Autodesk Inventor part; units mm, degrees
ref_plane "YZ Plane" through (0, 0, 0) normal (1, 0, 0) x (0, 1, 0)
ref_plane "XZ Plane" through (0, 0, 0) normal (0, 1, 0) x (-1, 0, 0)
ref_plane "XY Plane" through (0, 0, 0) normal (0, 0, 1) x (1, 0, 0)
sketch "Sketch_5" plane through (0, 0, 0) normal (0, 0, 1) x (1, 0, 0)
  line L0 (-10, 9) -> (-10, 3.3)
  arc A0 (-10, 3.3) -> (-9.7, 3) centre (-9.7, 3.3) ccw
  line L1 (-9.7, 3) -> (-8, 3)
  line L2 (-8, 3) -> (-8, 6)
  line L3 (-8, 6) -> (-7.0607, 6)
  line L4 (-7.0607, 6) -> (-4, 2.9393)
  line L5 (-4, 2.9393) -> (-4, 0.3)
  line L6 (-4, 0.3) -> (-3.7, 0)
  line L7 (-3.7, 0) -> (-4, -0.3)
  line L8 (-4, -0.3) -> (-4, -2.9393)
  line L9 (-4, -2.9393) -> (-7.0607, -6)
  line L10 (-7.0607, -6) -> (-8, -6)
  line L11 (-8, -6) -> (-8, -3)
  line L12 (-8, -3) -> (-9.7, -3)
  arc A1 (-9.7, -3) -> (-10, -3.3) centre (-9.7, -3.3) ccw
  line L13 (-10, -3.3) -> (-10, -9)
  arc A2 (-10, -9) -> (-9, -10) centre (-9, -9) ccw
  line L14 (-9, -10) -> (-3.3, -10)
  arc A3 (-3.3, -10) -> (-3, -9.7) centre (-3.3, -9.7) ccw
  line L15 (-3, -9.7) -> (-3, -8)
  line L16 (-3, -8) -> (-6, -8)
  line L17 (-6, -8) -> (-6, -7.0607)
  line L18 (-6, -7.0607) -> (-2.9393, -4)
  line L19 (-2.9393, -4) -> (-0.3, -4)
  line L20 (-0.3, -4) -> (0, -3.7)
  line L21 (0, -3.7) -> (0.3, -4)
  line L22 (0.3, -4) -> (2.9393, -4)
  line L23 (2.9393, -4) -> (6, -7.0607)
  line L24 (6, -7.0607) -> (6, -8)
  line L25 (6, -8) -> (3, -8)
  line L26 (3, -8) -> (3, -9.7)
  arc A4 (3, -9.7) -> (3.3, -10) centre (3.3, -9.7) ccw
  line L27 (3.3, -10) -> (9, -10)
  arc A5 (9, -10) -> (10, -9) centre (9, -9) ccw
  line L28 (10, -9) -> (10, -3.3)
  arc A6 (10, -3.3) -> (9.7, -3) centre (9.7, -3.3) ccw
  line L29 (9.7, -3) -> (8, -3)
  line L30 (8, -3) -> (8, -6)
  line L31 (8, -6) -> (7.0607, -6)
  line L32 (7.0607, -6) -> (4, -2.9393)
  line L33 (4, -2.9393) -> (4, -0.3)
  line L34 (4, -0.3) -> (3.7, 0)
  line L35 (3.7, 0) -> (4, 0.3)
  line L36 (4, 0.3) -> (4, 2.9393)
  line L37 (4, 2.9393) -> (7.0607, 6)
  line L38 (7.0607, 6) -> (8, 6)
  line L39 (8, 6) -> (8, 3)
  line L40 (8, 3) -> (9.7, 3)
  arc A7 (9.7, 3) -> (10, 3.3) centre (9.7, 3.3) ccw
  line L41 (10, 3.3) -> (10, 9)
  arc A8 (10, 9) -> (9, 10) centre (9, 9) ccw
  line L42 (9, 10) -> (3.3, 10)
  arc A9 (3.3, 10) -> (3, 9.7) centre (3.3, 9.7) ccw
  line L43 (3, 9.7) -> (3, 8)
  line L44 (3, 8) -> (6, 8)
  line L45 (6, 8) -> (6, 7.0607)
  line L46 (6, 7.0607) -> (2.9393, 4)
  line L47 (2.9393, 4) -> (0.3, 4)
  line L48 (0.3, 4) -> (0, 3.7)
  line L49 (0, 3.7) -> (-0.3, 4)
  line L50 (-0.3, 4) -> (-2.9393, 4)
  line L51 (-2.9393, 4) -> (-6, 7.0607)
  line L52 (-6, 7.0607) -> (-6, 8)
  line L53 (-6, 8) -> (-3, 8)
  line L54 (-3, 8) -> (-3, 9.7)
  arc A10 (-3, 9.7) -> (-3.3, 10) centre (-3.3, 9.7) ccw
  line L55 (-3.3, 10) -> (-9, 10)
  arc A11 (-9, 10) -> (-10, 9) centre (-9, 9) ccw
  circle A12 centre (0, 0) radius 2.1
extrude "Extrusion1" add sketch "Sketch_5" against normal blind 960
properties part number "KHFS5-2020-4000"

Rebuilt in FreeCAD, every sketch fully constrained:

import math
import FreeCAD as App
import Part
import Sketcher
from FreeCAD import Vector
Q = App.Units.Quantity

doc = App.newDocument("Part")
body = doc.addObject("PartDesign::Body", "Body")

# Sketch on XY plane
sketch1 = body.newObject("Sketcher::SketchObject", "Sketch")
sketch1.AttachmentSupport = (doc.getObject("XY_Plane"), [""])
sketch1.MapMode = "FlatFace"
sketch1.addGeometry(Part.ArcOfCircle(Part.Circle(Vector(-9, 9, 0), Vector(0, 0, 1), 1), math.radians(90), math.radians(180)), False)
sketch1.addGeometry(Part.LineSegment(Vector(-10, 9, 0), Vector(-10, 3.3, 0)), False)
sketch1.addGeometry(Part.ArcOfCircle(Part.Circle(Vector(-9.7, 3.3, 0), Vector(0, 0, 1), 0.3), math.radians(180), math.radians(270)), False)
sketch1.addGeometry(Part.LineSegment(Vector(-9.7, 3, 0), Vector(-8, 3, 0)), False)
sketch1.addGeometry(Part.LineSegment(Vector(-8, 3, 0), Vector(-8, 6, 0)), False)
sketch1.addGeometry(Part.LineSegment(Vector(-8, 6, 0), Vector(-7.06, 6, 0)), False)
sketch1.addGeometry(Part.LineSegment(Vector(-7.06, 6, 0), Vector(-4, 2.94, 0)), False)
sketch1.addGeometry(Part.LineSegment(Vector(-4, 2.94, 0), Vector(-4, 0.3, 0)), False)
sketch1.addGeometry(Part.LineSegment(Vector(-4, 0.3, 0), Vector(-3.7, 0, 0)), False)
sketch1.addGeometry(Part.LineSegment(Vector(-3.7, 0, 0), Vector(-4, -0.3, 0)), False)
sketch1.addGeometry(Part.LineSegment(Vector(-4, -0.3, 0), Vector(-4, -2.94, 0)), False)
sketch1.addGeometry(Part.LineSegment(Vector(-4, -2.94, 0), Vector(-7.06, -6, 0)), False)
sketch1.addGeometry(Part.LineSegment(Vector(-7.06, -6, 0), Vector(-8, -6, 0)), False)
sketch1.addGeometry(Part.LineSegment(Vector(-8, -6, 0), Vector(-8, -3, 0)), False)
sketch1.addGeometry(Part.LineSegment(Vector(-8, -3, 0), Vector(-9.7, -3, 0)), False)
sketch1.addGeometry(Part.ArcOfCircle(Part.Circle(Vector(-9.7, -3.3, 0), Vector(0, 0, 1), 0.3), math.radians(90), math.radians(180)), False)
sketch1.addGeometry(Part.LineSegment(Vector(-10, -3.3, 0), Vector(-10, -9, 0)), False)
sketch1.addGeometry(Part.ArcOfCircle(Part.Circle(Vector(-9, -9, 0), Vector(0, 0, 1), 1), math.radians(180), math.radians(270)), False)
sketch1.addGeometry(Part.LineSegment(Vector(-9, -10, 0), Vector(-3.3, -10, 0)), False)
sketch1.addGeometry(Part.ArcOfCircle(Part.Circle(Vector(-3.3, -9.7, 0), Vector(0, 0, 1), 0.3), math.radians(-90), math.radians(0)), False)
sketch1.addGeometry(Part.LineSegment(Vector(-3, -9.7, 0), Vector(-3, -8, 0)), False)
sketch1.addGeometry(Part.LineSegment(Vector(-3, -8, 0), Vector(-6, -8, 0)), False)
sketch1.addGeometry(Part.LineSegment(Vector(-6, -8, 0), Vector(-6, -7.06, 0)), False)
sketch1.addGeometry(Part.LineSegment(Vector(-6, -7.06, 0), Vector(-2.94, -4, 0)), False)
sketch1.addGeometry(Part.LineSegment(Vector(-2.94, -4, 0), Vector(-0.3, -4, 0)), False)
sketch1.addGeometry(Part.LineSegment(Vector(-0.3, -4, 0), Vector(0, -3.7, 0)), False)
sketch1.addGeometry(Part.LineSegment(Vector(0, -3.7, 0), Vector(0.3, -4, 0)), False)
sketch1.addGeometry(Part.LineSegment(Vector(0.3, -4, 0), Vector(2.94, -4, 0)), False)
sketch1.addGeometry(Part.LineSegment(Vector(2.94, -4, 0), Vector(6, -7.06, 0)), False)
sketch1.addGeometry(Part.LineSegment(Vector(6, -7.06, 0), Vector(6, -8, 0)), False)
sketch1.addGeometry(Part.LineSegment(Vector(6, -8, 0), Vector(3, -8, 0)), False)
sketch1.addGeometry(Part.LineSegment(Vector(3, -8, 0), Vector(3, -9.7, 0)), False)
sketch1.addGeometry(Part.ArcOfCircle(Part.Circle(Vector(3.3, -9.7, 0), Vector(0, 0, 1), 0.3), math.radians(180), math.radians(270)), False)
sketch1.addGeometry(Part.LineSegment(Vector(3.3, -10, 0), Vector(9, -10, 0)), False)
sketch1.addGeometry(Part.ArcOfCircle(Part.Circle(Vector(9, -9, 0), Vector(0, 0, 1), 1), math.radians(-90), math.radians(0)), False)
sketch1.addGeometry(Part.LineSegment(Vector(10, -9, 0), Vector(10, -3.3, 0)), False)
sketch1.addGeometry(Part.ArcOfCircle(Part.Circle(Vector(9.7, -3.3, 0), Vector(0, 0, 1), 0.3), math.radians(0), math.radians(90)), False)
sketch1.addGeometry(Part.LineSegment(Vector(9.7, -3, 0), Vector(8, -3, 0)), False)
sketch1.addGeometry(Part.LineSegment(Vector(8, -3, 0), Vector(8, -6, 0)), False)
sketch1.addGeometry(Part.LineSegment(Vector(8, -6, 0), Vector(7.06, -6, 0)), False)
sketch1.addGeometry(Part.LineSegment(Vector(7.06, -6, 0), Vector(4, -2.94, 0)), False)
sketch1.addGeometry(Part.LineSegment(Vector(4, -2.94, 0), Vector(4, -0.3, 0)), False)
sketch1.addGeometry(Part.LineSegment(Vector(4, -0.3, 0), Vector(3.7, 0, 0)), False)
sketch1.addGeometry(Part.LineSegment(Vector(3.7, 0, 0), Vector(4, 0.3, 0)), False)
sketch1.addGeometry(Part.LineSegment(Vector(4, 0.3, 0), Vector(4, 2.94, 0)), False)
sketch1.addGeometry(Part.LineSegment(Vector(4, 2.94, 0), Vector(7.06, 6, 0)), False)
sketch1.addGeometry(Part.LineSegment(Vector(7.06, 6, 0), Vector(8, 6, 0)), False)
sketch1.addGeometry(Part.LineSegment(Vector(8, 6, 0), Vector(8, 3, 0)), False)
sketch1.addGeometry(Part.LineSegment(Vector(8, 3, 0), Vector(9.7, 3, 0)), False)
sketch1.addGeometry(Part.ArcOfCircle(Part.Circle(Vector(9.7, 3.3, 0), Vector(0, 0, 1), 0.3), math.radians(-90), math.radians(0)), False)
sketch1.addGeometry(Part.LineSegment(Vector(10, 3.3, 0), Vector(10, 9, 0)), False)
sketch1.addGeometry(Part.ArcOfCircle(Part.Circle(Vector(9, 9, 0), Vector(0, 0, 1), 1), math.radians(0), math.radians(90)), False)
sketch1.addGeometry(Part.LineSegment(Vector(9, 10, 0), Vector(3.3, 10, 0)), False)
sketch1.addGeometry(Part.ArcOfCircle(Part.Circle(Vector(3.3, 9.7, 0), Vector(0, 0, 1), 0.3), math.radians(90), math.radians(180)), False)
sketch1.addGeometry(Part.LineSegment(Vector(3, 9.7, 0), Vector(3, 8, 0)), False)
sketch1.addGeometry(Part.LineSegment(Vector(3, 8, 0), Vector(6, 8, 0)), False)
sketch1.addGeometry(Part.LineSegment(Vector(6, 8, 0), Vector(6, 7.06, 0)), False)
sketch1.addGeometry(Part.LineSegment(Vector(6, 7.06, 0), Vector(2.94, 4, 0)), False)
sketch1.addGeometry(Part.LineSegment(Vector(2.94, 4, 0), Vector(0.3, 4, 0)), False)
sketch1.addGeometry(Part.LineSegment(Vector(0.3, 4, 0), Vector(0, 3.7, 0)), False)
sketch1.addGeometry(Part.LineSegment(Vector(0, 3.7, 0), Vector(-0.3, 4, 0)), False)
sketch1.addGeometry(Part.LineSegment(Vector(-0.3, 4, 0), Vector(-2.94, 4, 0)), False)
sketch1.addGeometry(Part.LineSegment(Vector(-2.94, 4, 0), Vector(-6, 7.06, 0)), False)
sketch1.addGeometry(Part.LineSegment(Vector(-6, 7.06, 0), Vector(-6, 8, 0)), False)
sketch1.addGeometry(Part.LineSegment(Vector(-6, 8, 0), Vector(-3, 8, 0)), False)
sketch1.addGeometry(Part.LineSegment(Vector(-3, 8, 0), Vector(-3, 9.7, 0)), False)
sketch1.addGeometry(Part.ArcOfCircle(Part.Circle(Vector(-3.3, 9.7, 0), Vector(0, 0, 1), 0.3), math.radians(0), math.radians(90)), False)
sketch1.addGeometry(Part.LineSegment(Vector(-3.3, 10, 0), Vector(-9, 10, 0)), False)
sketch1.addGeometry(Part.Circle(Vector(0, 0, 0), Vector(0, 0, 1), 2.1), False)
sketch1.addConstraint(Sketcher.Constraint("Tangent", 0, 2, 1, 1))
sketch1.addConstraint(Sketcher.Constraint("Tangent", 1, 2, 2, 1))
sketch1.addConstraint(Sketcher.Constraint("Tangent", 2, 2, 3, 1))
sketch1.addConstraint(Sketcher.Constraint("Coincident", 3, 2, 4, 1))
sketch1.addConstraint(Sketcher.Constraint("Coincident", 4, 2, 5, 1))
sketch1.addConstraint(Sketcher.Constraint("Coincident", 5, 2, 6, 1))
sketch1.addConstraint(Sketcher.Constraint("Coincident", 6, 2, 7, 1))
sketch1.addConstraint(Sketcher.Constraint("Coincident", 7, 2, 8, 1))
sketch1.addConstraint(Sketcher.Constraint("Coincident", 8, 2, 9, 1))
sketch1.addConstraint(Sketcher.Constraint("Coincident", 9, 2, 10, 1))
sketch1.addConstraint(Sketcher.Constraint("Coincident", 10, 2, 11, 1))
sketch1.addConstraint(Sketcher.Constraint("Coincident", 11, 2, 12, 1))
sketch1.addConstraint(Sketcher.Constraint("Coincident", 12, 2, 13, 1))
sketch1.addConstraint(Sketcher.Constraint("Coincident", 13, 2, 14, 1))
sketch1.addConstraint(Sketcher.Constraint("Tangent", 14, 2, 15, 1))
sketch1.addConstraint(Sketcher.Constraint("Tangent", 15, 2, 16, 1))
sketch1.addConstraint(Sketcher.Constraint("Tangent", 16, 2, 17, 1))
sketch1.addConstraint(Sketcher.Constraint("Tangent", 17, 2, 18, 1))
sketch1.addConstraint(Sketcher.Constraint("Tangent", 18, 2, 19, 1))
sketch1.addConstraint(Sketcher.Constraint("Tangent", 19, 2, 20, 1))
sketch1.addConstraint(Sketcher.Constraint("Coincident", 20, 2, 21, 1))
sketch1.addConstraint(Sketcher.Constraint("Coincident", 21, 2, 22, 1))
sketch1.addConstraint(Sketcher.Constraint("Coincident", 22, 2, 23, 1))
sketch1.addConstraint(Sketcher.Constraint("Coincident", 23, 2, 24, 1))
sketch1.addConstraint(Sketcher.Constraint("Coincident", 24, 2, 25, 1))
sketch1.addConstraint(Sketcher.Constraint("Coincident", 25, 2, 26, 1))
sketch1.addConstraint(Sketcher.Constraint("Coincident", 26, 2, 27, 1))
sketch1.addConstraint(Sketcher.Constraint("Coincident", 27, 2, 28, 1))
sketch1.addConstraint(Sketcher.Constraint("Coincident", 28, 2, 29, 1))
sketch1.addConstraint(Sketcher.Constraint("Coincident", 29, 2, 30, 1))
sketch1.addConstraint(Sketcher.Constraint("Coincident", 30, 2, 31, 1))
sketch1.addConstraint(Sketcher.Constraint("Tangent", 31, 2, 32, 1))
sketch1.addConstraint(Sketcher.Constraint("Tangent", 32, 2, 33, 1))
sketch1.addConstraint(Sketcher.Constraint("Tangent", 33, 2, 34, 1))
sketch1.addConstraint(Sketcher.Constraint("Tangent", 34, 2, 35, 1))
sketch1.addConstraint(Sketcher.Constraint("Tangent", 35, 2, 36, 1))
sketch1.addConstraint(Sketcher.Constraint("Tangent", 36, 2, 37, 1))
sketch1.addConstraint(Sketcher.Constraint("Coincident", 37, 2, 38, 1))
sketch1.addConstraint(Sketcher.Constraint("Coincident", 38, 2, 39, 1))
sketch1.addConstraint(Sketcher.Constraint("Coincident", 39, 2, 40, 1))
sketch1.addConstraint(Sketcher.Constraint("Coincident", 40, 2, 41, 1))
sketch1.addConstraint(Sketcher.Constraint("Coincident", 41, 2, 42, 1))
sketch1.addConstraint(Sketcher.Constraint("Coincident", 42, 2, 43, 1))
sketch1.addConstraint(Sketcher.Constraint("Coincident", 43, 2, 44, 1))
sketch1.addConstraint(Sketcher.Constraint("Coincident", 44, 2, 45, 1))
sketch1.addConstraint(Sketcher.Constraint("Coincident", 45, 2, 46, 1))
sketch1.addConstraint(Sketcher.Constraint("Coincident", 46, 2, 47, 1))
sketch1.addConstraint(Sketcher.Constraint("Coincident", 47, 2, 48, 1))
sketch1.addConstraint(Sketcher.Constraint("Tangent", 48, 2, 49, 1))
sketch1.addConstraint(Sketcher.Constraint("Tangent", 49, 2, 50, 1))
sketch1.addConstraint(Sketcher.Constraint("Tangent", 50, 2, 51, 1))
sketch1.addConstraint(Sketcher.Constraint("Tangent", 51, 2, 52, 1))
sketch1.addConstraint(Sketcher.Constraint("Tangent", 52, 2, 53, 1))
sketch1.addConstraint(Sketcher.Constraint("Tangent", 53, 2, 54, 1))
sketch1.addConstraint(Sketcher.Constraint("Coincident", 54, 2, 55, 1))
sketch1.addConstraint(Sketcher.Constraint("Coincident", 55, 2, 56, 1))
sketch1.addConstraint(Sketcher.Constraint("Coincident", 56, 2, 57, 1))
sketch1.addConstraint(Sketcher.Constraint("Coincident", 57, 2, 58, 1))
sketch1.addConstraint(Sketcher.Constraint("Coincident", 58, 2, 59, 1))
sketch1.addConstraint(Sketcher.Constraint("Coincident", 59, 2, 60, 1))
sketch1.addConstraint(Sketcher.Constraint("Coincident", 60, 2, 61, 1))
sketch1.addConstraint(Sketcher.Constraint("Coincident", 61, 2, 62, 1))
sketch1.addConstraint(Sketcher.Constraint("Coincident", 62, 2, 63, 1))
sketch1.addConstraint(Sketcher.Constraint("Coincident", 63, 2, 64, 1))
sketch1.addConstraint(Sketcher.Constraint("Coincident", 64, 2, 65, 1))
sketch1.addConstraint(Sketcher.Constraint("Tangent", 65, 2, 66, 1))
sketch1.addConstraint(Sketcher.Constraint("Tangent", 66, 2, 67, 1))
sketch1.addConstraint(Sketcher.Constraint("Tangent", 67, 2, 0, 1))
sketch1.addConstraint(Sketcher.Constraint("Vertical", 1))
sketch1.addConstraint(Sketcher.Constraint("Horizontal", 3))
sketch1.addConstraint(Sketcher.Constraint("Vertical", 4))
sketch1.addConstraint(Sketcher.Constraint("Horizontal", 5))
sketch1.addConstraint(Sketcher.Constraint("Vertical", 7))
sketch1.addConstraint(Sketcher.Constraint("Vertical", 10))
sketch1.addConstraint(Sketcher.Constraint("Horizontal", 12))
sketch1.addConstraint(Sketcher.Constraint("Vertical", 13))
sketch1.addConstraint(Sketcher.Constraint("Horizontal", 14))
sketch1.addConstraint(Sketcher.Constraint("Vertical", 16))
sketch1.addConstraint(Sketcher.Constraint("Horizontal", 18))
sketch1.addConstraint(Sketcher.Constraint("Vertical", 20))
sketch1.addConstraint(Sketcher.Constraint("Horizontal", 21))
sketch1.addConstraint(Sketcher.Constraint("Vertical", 22))
sketch1.addConstraint(Sketcher.Constraint("Horizontal", 24))
sketch1.addConstraint(Sketcher.Constraint("Horizontal", 27))
sketch1.addConstraint(Sketcher.Constraint("Vertical", 29))
sketch1.addConstraint(Sketcher.Constraint("Horizontal", 30))
sketch1.addConstraint(Sketcher.Constraint("Vertical", 31))
sketch1.addConstraint(Sketcher.Constraint("Horizontal", 33))
sketch1.addConstraint(Sketcher.Constraint("Vertical", 35))
sketch1.addConstraint(Sketcher.Constraint("Horizontal", 37))
sketch1.addConstraint(Sketcher.Constraint("Vertical", 38))
sketch1.addConstraint(Sketcher.Constraint("Horizontal", 39))
sketch1.addConstraint(Sketcher.Constraint("Vertical", 41))
sketch1.addConstraint(Sketcher.Constraint("Vertical", 44))
sketch1.addConstraint(Sketcher.Constraint("Horizontal", 46))
sketch1.addConstraint(Sketcher.Constraint("Vertical", 47))
sketch1.addConstraint(Sketcher.Constraint("Horizontal", 48))
sketch1.addConstraint(Sketcher.Constraint("Vertical", 50))
sketch1.addConstraint(Sketcher.Constraint("Horizontal", 52))
sketch1.addConstraint(Sketcher.Constraint("Vertical", 54))
sketch1.addConstraint(Sketcher.Constraint("Horizontal", 55))
sketch1.addConstraint(Sketcher.Constraint("Vertical", 56))
sketch1.addConstraint(Sketcher.Constraint("Horizontal", 58))
sketch1.addConstraint(Sketcher.Constraint("Horizontal", 61))
sketch1.addConstraint(Sketcher.Constraint("Vertical", 63))
sketch1.addConstraint(Sketcher.Constraint("Horizontal", 64))
sketch1.addConstraint(Sketcher.Constraint("Vertical", 65))
sketch1.addConstraint(Sketcher.Constraint("Horizontal", 67))
sketch1.addConstraint(Sketcher.Constraint("Coincident", 68, 3, -1, 1))
sketch1.addConstraint(Sketcher.Constraint("Equal", 2, 15))
sketch1.addConstraint(Sketcher.Constraint("Equal", 0, 17))
sketch1.addConstraint(Sketcher.Constraint("Equal", 15, 19))
sketch1.addConstraint(Sketcher.Constraint("Equal", 19, 32))
sketch1.addConstraint(Sketcher.Constraint("Equal", 17, 34))
sketch1.addConstraint(Sketcher.Constraint("Equal", 32, 36))
sketch1.addConstraint(Sketcher.Constraint("Equal", 36, 49))
sketch1.addConstraint(Sketcher.Constraint("Equal", 34, 51))
sketch1.addConstraint(Sketcher.Constraint("Equal", 49, 53))
sketch1.addConstraint(Sketcher.Constraint("Equal", 53, 66))
sketch1.addConstraint(Sketcher.Constraint("Symmetric", 0, 3, 34, 3, -1, 1))
sketch1.addConstraint(Sketcher.Constraint("Symmetric", 15, 3, 49, 3, -1, 1))
sketch1.addConstraint(Sketcher.Constraint("Symmetric", 19, 3, 53, 3, -1, 1))
sketch1.addConstraint(Sketcher.Constraint("Symmetric", 3, 2, 37, 2, -1, 1))
sketch1.addConstraint(Sketcher.Constraint("Symmetric", 5, 2, 39, 2, -1, 1))
sketch1.addConstraint(Sketcher.Constraint("Symmetric", 6, 2, 40, 2, -1, 1))
sketch1.addConstraint(Sketcher.Constraint("Symmetric", 8, 2, 42, 2, -1, 1))
sketch1.addConstraint(Sketcher.Constraint("Symmetric", 9, 2, 43, 2, -1, 1))
sketch1.addConstraint(Sketcher.Constraint("Symmetric", 11, 2, 45, 2, -1, 1))
sketch1.addConstraint(Sketcher.Constraint("Symmetric", 21, 2, 55, 2, -1, 1))
sketch1.addConstraint(Sketcher.Constraint("Symmetric", 23, 2, 57, 2, -1, 1))
sketch1.addConstraint(Sketcher.Constraint("Symmetric", 25, 2, 59, 2, -1, 1))
sketch1.addConstraint(Sketcher.Constraint("Symmetric", 26, 2, 60, 2, -1, 1))
sketch1.addConstraint(Sketcher.Constraint("Symmetric", 28, 2, 62, 2, -1, 1))
sketch1.addConstraint(Sketcher.Constraint("Symmetric", 30, 2, 64, 2, -1, 1))
sketch1.addConstraint(Sketcher.Constraint("Symmetric", 19, 3, 32, 3, -2))
sketch1.addConstraint(Sketcher.Constraint("Symmetric", 15, 3, 36, 3, -2))
sketch1.addConstraint(Sketcher.Constraint("Symmetric", 24, 2, 26, 2, -2))
sketch1.addConstraint(Sketcher.Constraint("Symmetric", 22, 2, 28, 2, -2))
sketch1.addConstraint(Sketcher.Constraint("Symmetric", 12, 2, 38, 2, -2))
sketch1.addConstraint(Sketcher.Constraint("Symmetric", 10, 2, 40, 2, -2))
sketch1.addConstraint(Sketcher.Constraint("PointOnObject", 8, 2, -1))
sketch1.addConstraint(Sketcher.Constraint("PointOnObject", 25, 2, -2))
sketch1.addConstraint(Sketcher.Constraint("Parallel", 6, 8))
sketch1.addConstraint(Sketcher.Constraint("Perpendicular", 8, 9))
sketch1.addConstraint(Sketcher.Constraint("Parallel", 9, 11))
sketch1.addConstraint(Sketcher.Constraint("Parallel", 11, 23))
sketch1.addConstraint(Sketcher.Constraint("Parallel", 23, 25))
sketch1.addConstraint(Sketcher.Constraint("Perpendicular", 25, 26))
sketch1.addConstraint(Sketcher.Constraint("Parallel", 26, 28))
sketch1.addConstraint(Sketcher.Constraint("Parallel", 40, 42))
sketch1.addConstraint(Sketcher.Constraint("Parallel", 43, 45))
sketch1.addConstraint(Sketcher.Constraint("Parallel", 45, 57))
sketch1.addConstraint(Sketcher.Constraint("Parallel", 57, 59))
sketch1.addConstraint(Sketcher.Constraint("Parallel", 60, 62))
sketch1.addConstraint(Sketcher.Constraint("Horizontal", 21, 2, 29, 2))
sketch1.addConstraint(Sketcher.Constraint("Vertical", 38, 2, 46, 2))
sketch1.addConstraint(Sketcher.Constraint("Equal", 67, 1))
sketch1.addConstraint(Sketcher.Constraint("Equal", 64, 4))
sketch1.addConstraint(Sketcher.Constraint("Equal", 61, 7))
sketch1.addConstraint(Sketcher.Constraint("Equal", 48, 20))
sketch1.addConstraint(Sketcher.Constraint("Equal", 46, 22))
sketch1.addConstraint(Sketcher.Constraint("Equal", 11, 23))
sketch1.addConstraint(Sketcher.Constraint("Equal", 9, 25))
sketch1.addConstraint(Sketcher.Constraint("Radius", 0, Q("1 mm")))
sketch1.addConstraint(Sketcher.Constraint("Diameter", 68, Q("4.2 mm")))
sketch1.addConstraint(Sketcher.Constraint("Radius", 2, Q("0.3 mm")))
sketch1.addConstraint(Sketcher.Constraint("DistanceX", 21, 2, 21, 1, Q("3 mm")))
sketch1.addConstraint(Sketcher.Constraint("DistanceX", 3, 1, 3, 2, Q("1.7 mm")))
sketch1.addConstraint(Sketcher.Constraint("DistanceX", 18, 1, 18, 2, Q("5.7 mm")))
sketch1.addConstraint(Sketcher.Constraint("DistanceX", 0, 3, -1, 1, Q("9 mm")))
sketch1.addConstraint(Sketcher.Constraint("DistanceX", 6, 2, -1, 1, Q("4 mm")))
sketch1.addConstraint(Sketcher.Constraint("DistanceY", -1, 1, 7, 2, Q("0.3 mm")))
sketch1.addConstraint(Sketcher.Constraint("DistanceX", 5, 1, 5, 2, Q("0.9393 mm")))
pad1 = body.newObject("PartDesign::Pad", "Pad")
pad1.Profile = sketch1
pad1.Length = 960
pad1.Reversed = True

doc.recompute()
